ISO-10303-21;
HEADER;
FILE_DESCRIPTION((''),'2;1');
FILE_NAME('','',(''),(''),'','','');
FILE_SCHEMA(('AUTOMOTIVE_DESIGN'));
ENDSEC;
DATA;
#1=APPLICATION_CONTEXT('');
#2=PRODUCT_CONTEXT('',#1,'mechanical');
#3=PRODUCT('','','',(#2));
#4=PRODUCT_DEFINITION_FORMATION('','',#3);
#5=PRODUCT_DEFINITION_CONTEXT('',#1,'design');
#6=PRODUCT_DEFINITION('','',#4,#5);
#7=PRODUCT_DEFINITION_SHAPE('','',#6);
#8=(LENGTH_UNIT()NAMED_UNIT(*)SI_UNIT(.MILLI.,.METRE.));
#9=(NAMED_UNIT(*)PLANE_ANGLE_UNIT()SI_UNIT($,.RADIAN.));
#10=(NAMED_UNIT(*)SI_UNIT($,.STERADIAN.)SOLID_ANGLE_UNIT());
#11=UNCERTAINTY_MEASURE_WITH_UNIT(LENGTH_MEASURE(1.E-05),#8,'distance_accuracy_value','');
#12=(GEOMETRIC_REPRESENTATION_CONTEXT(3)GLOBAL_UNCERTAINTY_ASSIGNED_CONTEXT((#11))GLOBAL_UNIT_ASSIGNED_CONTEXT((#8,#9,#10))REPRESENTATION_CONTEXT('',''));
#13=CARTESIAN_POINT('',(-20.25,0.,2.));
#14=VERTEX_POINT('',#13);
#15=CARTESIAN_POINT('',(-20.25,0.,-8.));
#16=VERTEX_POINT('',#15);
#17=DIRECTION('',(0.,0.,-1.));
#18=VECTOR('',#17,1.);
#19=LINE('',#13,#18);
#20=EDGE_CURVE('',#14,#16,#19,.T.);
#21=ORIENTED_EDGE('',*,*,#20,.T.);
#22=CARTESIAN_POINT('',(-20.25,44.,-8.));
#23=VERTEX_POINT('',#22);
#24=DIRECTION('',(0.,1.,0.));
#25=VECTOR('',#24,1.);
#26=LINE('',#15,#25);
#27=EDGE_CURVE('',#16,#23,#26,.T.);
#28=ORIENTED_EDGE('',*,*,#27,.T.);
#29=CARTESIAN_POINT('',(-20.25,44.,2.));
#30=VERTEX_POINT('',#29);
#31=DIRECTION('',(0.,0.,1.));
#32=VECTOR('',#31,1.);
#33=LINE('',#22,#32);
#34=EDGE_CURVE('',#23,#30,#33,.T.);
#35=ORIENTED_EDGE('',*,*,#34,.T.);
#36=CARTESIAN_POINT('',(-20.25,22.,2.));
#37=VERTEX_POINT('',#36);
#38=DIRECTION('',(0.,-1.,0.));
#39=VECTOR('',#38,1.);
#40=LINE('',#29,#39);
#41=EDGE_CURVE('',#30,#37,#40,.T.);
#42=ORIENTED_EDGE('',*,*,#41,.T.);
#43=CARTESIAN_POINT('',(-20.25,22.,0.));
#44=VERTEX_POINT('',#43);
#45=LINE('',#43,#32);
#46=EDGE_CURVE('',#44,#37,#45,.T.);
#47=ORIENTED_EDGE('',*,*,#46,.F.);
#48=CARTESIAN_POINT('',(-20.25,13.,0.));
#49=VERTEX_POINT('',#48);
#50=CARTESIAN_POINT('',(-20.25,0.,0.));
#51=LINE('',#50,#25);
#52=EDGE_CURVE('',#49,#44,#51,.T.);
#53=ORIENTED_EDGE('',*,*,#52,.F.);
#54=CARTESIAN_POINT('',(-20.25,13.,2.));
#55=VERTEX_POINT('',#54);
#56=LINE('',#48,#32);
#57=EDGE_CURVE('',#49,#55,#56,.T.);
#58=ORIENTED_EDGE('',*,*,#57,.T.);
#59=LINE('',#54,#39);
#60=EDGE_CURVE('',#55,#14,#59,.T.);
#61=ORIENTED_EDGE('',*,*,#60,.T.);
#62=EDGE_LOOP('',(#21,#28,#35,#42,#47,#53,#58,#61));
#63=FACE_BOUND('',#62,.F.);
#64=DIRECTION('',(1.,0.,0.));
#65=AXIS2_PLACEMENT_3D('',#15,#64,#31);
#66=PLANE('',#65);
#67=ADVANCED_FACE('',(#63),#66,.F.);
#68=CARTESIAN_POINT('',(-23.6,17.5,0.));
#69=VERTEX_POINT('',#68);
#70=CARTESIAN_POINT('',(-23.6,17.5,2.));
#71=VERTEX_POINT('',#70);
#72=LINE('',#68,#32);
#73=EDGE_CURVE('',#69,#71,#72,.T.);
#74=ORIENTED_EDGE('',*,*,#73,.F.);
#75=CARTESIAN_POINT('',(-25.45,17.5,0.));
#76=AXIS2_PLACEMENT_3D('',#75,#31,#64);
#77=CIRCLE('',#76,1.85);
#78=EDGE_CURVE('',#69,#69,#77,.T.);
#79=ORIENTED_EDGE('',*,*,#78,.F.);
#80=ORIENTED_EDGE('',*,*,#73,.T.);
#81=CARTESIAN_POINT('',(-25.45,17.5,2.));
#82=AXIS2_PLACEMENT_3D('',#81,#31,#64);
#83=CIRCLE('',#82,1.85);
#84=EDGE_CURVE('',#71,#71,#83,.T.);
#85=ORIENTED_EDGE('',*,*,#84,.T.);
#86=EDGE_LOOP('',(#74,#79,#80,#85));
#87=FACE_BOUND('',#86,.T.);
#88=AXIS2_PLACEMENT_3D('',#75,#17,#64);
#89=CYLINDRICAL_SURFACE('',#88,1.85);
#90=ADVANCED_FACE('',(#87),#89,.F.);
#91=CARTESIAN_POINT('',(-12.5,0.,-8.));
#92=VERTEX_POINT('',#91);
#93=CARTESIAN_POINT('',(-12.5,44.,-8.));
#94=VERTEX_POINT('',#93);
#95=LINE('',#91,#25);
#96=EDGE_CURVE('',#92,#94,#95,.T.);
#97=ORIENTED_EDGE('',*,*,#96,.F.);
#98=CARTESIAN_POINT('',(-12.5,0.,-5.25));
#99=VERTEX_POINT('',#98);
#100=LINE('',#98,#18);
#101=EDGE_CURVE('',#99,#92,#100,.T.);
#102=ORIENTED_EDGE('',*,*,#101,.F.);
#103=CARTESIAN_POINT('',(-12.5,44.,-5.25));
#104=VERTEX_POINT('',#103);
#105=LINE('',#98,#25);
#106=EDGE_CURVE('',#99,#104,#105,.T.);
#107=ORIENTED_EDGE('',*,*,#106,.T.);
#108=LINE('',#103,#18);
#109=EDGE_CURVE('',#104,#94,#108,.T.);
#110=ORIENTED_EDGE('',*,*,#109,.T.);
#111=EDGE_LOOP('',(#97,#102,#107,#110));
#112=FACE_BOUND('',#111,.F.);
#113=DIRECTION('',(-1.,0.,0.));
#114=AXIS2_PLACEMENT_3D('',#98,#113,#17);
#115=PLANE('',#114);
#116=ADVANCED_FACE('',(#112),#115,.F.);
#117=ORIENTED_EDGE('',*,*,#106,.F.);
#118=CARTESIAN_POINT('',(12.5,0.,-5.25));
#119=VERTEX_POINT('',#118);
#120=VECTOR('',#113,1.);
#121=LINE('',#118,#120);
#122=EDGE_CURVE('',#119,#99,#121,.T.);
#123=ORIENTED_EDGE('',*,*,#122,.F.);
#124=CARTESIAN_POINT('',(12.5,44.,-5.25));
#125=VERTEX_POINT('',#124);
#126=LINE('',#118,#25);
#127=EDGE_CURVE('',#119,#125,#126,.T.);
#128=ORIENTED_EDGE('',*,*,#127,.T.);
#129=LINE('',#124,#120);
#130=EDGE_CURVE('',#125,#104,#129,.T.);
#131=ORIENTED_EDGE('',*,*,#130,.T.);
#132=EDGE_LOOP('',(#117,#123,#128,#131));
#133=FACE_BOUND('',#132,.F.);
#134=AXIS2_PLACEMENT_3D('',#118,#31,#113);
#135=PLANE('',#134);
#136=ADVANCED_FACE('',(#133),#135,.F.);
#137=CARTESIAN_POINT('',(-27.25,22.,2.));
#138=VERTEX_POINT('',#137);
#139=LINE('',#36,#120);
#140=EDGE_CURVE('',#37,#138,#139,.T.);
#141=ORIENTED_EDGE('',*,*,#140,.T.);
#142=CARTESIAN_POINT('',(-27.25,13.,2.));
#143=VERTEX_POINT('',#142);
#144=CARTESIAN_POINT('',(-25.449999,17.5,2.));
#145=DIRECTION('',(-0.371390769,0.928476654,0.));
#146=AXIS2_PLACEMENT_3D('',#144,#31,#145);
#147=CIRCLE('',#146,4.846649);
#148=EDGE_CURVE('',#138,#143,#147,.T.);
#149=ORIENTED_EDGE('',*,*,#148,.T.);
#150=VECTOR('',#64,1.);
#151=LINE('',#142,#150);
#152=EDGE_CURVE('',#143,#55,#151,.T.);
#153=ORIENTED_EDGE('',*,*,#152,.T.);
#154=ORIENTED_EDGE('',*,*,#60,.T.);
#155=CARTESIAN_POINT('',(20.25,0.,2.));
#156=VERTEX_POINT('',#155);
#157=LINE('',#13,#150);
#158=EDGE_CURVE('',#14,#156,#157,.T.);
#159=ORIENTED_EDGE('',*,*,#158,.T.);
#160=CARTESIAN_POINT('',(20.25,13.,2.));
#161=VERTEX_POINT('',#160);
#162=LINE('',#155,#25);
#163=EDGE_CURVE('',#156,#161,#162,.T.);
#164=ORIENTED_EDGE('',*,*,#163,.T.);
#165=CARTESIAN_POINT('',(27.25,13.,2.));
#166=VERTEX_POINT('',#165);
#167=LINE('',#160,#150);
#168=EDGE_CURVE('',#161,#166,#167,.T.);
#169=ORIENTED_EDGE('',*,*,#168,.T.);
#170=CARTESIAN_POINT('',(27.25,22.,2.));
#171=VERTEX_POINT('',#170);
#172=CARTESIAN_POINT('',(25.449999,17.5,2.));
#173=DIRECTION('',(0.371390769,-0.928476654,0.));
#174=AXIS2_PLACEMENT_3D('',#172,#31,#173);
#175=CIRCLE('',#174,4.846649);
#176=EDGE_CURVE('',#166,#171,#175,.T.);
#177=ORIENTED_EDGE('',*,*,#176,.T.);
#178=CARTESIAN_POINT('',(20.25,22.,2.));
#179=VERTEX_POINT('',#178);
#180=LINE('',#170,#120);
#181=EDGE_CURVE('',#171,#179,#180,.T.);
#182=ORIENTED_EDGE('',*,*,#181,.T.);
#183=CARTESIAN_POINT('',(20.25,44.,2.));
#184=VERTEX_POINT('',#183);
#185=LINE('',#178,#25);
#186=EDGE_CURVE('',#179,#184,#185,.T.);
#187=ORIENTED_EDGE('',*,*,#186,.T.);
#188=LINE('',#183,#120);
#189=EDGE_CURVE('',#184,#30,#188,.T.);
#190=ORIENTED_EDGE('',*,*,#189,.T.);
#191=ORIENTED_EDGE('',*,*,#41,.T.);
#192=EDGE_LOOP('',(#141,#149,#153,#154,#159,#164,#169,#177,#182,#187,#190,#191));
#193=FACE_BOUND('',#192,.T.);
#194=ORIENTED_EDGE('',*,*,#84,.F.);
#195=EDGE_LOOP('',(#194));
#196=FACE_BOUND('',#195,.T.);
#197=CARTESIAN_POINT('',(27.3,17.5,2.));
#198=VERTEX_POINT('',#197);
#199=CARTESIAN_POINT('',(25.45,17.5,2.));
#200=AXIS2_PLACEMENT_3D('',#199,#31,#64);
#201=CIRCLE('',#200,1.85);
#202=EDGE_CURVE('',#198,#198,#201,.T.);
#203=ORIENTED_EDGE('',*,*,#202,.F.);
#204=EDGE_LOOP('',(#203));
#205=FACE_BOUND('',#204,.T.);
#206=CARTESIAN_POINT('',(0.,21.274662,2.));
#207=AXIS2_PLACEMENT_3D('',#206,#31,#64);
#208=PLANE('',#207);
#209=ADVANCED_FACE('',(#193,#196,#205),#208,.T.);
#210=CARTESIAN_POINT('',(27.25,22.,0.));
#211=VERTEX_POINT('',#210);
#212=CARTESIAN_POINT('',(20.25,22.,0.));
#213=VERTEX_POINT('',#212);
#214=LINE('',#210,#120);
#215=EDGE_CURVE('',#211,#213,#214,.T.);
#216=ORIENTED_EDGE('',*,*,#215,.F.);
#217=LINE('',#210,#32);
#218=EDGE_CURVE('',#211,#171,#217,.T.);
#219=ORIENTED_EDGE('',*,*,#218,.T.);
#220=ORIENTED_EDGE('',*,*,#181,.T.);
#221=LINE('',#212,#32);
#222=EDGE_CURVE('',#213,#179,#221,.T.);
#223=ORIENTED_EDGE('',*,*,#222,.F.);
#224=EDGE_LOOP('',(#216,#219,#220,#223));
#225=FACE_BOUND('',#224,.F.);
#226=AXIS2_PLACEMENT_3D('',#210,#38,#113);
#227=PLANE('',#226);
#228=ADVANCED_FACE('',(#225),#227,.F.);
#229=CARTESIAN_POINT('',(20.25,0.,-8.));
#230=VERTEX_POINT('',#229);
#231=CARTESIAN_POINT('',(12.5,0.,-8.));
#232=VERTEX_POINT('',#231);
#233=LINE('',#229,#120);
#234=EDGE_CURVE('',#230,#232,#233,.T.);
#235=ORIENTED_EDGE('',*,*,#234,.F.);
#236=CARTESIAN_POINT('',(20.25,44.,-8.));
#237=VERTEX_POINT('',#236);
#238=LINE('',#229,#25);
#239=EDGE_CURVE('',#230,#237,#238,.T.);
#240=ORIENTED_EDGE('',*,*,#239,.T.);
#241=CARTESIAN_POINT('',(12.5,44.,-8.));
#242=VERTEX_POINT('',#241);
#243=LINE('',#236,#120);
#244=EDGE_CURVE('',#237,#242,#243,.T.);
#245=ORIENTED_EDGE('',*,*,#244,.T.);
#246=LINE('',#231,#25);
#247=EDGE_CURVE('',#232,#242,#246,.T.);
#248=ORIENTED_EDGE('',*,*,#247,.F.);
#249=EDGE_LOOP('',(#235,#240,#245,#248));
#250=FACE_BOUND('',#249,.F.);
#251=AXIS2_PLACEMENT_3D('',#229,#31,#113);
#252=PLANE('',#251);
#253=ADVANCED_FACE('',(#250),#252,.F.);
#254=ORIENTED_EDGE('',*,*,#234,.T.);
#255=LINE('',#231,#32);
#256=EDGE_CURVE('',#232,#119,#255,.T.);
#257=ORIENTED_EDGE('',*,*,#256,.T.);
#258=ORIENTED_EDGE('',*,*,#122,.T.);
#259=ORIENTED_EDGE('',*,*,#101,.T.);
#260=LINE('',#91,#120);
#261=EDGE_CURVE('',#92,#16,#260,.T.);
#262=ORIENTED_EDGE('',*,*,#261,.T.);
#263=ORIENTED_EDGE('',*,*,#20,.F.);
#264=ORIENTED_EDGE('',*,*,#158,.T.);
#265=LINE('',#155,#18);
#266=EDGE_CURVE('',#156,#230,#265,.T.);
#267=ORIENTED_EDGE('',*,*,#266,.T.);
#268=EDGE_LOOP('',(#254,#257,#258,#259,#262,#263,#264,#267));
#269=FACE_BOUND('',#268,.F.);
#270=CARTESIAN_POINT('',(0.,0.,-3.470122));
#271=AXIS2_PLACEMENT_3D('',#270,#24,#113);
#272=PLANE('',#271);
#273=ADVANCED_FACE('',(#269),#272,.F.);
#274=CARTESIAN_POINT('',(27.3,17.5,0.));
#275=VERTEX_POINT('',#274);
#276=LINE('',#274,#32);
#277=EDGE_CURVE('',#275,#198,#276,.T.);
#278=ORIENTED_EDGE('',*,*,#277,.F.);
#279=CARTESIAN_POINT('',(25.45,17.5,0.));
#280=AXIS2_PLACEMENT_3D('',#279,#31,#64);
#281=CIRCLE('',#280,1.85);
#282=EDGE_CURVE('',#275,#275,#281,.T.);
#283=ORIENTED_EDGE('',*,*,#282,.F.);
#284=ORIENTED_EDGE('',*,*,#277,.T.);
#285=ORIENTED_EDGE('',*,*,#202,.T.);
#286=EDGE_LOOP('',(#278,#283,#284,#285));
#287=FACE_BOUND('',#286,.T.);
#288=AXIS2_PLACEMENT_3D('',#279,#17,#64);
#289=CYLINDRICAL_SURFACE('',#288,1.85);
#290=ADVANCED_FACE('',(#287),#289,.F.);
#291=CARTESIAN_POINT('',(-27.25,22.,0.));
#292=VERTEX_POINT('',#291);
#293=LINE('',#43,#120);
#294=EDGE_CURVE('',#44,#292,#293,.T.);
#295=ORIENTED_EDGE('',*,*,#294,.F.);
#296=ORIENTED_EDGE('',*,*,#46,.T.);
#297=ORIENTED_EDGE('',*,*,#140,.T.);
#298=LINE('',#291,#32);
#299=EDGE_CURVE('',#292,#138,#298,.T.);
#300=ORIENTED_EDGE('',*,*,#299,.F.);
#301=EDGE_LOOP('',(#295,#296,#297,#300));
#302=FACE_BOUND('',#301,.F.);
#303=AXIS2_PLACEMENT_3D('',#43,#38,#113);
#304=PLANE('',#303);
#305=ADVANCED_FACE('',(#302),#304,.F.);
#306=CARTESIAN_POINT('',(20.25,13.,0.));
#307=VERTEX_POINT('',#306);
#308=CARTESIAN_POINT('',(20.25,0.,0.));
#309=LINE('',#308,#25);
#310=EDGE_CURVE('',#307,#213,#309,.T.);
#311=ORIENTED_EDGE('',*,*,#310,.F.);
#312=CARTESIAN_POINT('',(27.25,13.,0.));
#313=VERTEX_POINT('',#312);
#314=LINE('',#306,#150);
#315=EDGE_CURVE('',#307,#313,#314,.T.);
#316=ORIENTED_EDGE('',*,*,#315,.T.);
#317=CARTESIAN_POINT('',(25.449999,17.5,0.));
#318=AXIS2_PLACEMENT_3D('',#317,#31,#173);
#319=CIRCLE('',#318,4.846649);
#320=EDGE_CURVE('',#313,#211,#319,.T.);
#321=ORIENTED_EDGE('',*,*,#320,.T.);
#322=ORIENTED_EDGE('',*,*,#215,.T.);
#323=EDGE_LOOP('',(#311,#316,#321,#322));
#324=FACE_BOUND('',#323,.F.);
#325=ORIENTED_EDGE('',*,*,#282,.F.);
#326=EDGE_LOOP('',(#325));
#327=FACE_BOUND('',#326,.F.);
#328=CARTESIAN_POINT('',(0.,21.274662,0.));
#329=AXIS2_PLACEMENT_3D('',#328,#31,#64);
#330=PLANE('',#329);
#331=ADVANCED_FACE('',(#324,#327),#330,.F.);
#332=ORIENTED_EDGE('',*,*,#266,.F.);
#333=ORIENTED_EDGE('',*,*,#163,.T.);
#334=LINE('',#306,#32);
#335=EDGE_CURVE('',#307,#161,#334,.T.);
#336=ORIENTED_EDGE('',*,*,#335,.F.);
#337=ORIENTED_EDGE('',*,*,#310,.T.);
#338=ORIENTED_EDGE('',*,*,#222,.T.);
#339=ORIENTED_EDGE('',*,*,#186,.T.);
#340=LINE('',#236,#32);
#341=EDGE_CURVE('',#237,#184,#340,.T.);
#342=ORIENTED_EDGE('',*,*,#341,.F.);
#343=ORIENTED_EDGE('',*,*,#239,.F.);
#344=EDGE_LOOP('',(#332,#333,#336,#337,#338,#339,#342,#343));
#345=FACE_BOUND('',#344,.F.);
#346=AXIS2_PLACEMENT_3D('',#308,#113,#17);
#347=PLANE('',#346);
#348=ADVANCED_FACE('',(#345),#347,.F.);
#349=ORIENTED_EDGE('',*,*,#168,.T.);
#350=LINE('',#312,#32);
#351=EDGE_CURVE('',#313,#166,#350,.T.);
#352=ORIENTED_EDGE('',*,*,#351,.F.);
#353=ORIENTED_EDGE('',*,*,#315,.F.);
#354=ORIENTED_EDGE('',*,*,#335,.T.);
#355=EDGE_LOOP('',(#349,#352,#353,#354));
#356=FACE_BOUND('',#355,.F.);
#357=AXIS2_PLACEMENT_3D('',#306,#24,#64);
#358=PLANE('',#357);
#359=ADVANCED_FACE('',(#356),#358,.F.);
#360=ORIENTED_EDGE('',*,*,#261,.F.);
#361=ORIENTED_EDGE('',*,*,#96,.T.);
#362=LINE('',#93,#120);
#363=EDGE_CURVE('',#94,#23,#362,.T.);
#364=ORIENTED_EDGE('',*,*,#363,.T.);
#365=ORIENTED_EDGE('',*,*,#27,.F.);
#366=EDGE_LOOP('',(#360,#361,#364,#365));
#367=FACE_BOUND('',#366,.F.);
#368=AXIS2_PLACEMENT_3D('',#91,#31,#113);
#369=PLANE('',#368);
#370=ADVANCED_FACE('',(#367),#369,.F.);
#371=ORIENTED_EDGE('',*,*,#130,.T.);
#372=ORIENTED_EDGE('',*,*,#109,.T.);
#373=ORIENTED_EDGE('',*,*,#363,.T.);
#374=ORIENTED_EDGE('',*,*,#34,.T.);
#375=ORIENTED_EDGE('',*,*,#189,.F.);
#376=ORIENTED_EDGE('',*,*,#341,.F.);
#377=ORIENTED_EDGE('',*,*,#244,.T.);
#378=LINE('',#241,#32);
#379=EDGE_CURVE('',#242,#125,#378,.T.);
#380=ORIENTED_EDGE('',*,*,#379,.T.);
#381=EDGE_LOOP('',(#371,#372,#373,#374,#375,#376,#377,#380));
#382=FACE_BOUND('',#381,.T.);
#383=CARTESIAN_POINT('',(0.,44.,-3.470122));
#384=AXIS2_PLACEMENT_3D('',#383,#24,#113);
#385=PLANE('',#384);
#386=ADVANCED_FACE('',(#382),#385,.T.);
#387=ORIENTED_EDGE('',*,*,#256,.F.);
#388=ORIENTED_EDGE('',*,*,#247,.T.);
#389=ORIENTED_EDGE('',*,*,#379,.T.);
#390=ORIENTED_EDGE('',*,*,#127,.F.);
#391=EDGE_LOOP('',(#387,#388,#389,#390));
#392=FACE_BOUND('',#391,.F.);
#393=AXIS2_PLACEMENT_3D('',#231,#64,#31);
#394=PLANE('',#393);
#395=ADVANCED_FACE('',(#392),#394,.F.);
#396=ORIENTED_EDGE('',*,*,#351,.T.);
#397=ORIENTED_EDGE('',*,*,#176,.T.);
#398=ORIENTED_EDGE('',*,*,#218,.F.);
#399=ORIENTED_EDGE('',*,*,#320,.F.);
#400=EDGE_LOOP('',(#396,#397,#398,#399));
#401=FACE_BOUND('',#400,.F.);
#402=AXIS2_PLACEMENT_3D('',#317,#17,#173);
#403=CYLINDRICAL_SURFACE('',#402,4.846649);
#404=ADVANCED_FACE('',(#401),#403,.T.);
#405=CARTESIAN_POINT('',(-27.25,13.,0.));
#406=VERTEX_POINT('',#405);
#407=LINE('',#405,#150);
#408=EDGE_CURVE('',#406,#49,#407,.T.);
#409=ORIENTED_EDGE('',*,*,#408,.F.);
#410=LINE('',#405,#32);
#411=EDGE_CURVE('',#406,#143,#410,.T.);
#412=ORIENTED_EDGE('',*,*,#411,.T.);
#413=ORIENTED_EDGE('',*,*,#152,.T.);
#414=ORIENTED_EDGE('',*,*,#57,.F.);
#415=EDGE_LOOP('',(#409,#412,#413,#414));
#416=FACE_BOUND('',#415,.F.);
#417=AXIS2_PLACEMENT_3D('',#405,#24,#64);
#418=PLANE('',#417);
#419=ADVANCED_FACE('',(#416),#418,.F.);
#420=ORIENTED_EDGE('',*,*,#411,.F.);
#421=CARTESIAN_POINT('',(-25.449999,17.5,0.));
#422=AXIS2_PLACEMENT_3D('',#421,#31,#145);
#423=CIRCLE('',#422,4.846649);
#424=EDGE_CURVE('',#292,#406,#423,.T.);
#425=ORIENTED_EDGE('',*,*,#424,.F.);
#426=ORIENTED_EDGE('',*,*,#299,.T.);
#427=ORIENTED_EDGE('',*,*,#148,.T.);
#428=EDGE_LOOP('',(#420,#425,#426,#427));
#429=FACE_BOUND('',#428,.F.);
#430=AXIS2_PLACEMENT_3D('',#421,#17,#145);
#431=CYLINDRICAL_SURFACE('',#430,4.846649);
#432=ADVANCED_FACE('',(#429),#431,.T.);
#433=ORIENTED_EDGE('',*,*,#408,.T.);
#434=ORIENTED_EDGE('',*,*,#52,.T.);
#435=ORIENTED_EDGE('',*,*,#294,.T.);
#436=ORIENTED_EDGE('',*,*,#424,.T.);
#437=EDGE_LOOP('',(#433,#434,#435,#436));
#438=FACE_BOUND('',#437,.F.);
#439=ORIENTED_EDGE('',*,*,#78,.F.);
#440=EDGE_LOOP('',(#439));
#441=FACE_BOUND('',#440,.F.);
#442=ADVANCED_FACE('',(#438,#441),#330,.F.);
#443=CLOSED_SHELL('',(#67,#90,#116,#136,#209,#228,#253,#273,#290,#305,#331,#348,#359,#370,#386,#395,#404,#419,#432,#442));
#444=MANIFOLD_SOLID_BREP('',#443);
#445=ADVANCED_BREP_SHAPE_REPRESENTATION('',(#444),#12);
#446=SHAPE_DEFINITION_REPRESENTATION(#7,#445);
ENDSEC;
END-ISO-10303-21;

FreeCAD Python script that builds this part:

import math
import FreeCAD as App
import Part
import Sketcher

V = App.Vector


def add_polygon(sketch, points):
    """Adds a closed chain of lines whose ends are joined by coincident constraints."""
    first, n = sketch.GeometryCount, len(points)
    for a, b in zip(points, points[1:] + points[:1]):
        sketch.addGeometry(Part.LineSegment(App.Vector(*a, 0), App.Vector(*b, 0)), False)
    for i in range(n):
        sketch.addConstraint(Sketcher.Constraint("Coincident", first + i, 2, first + (i + 1) % n, 1))

doc = App.newDocument("Part")
body = doc.addObject("PartDesign::Body", "Body")

sketch1 = doc.addObject("Sketcher::SketchObject", "Sketch")
body.addObject(sketch1)
sketch1.AttachmentSupport = (doc.XY_Plane, [""])
sketch1.MapMode = "FlatFace"
add_polygon(sketch1, [(20.2, 0), (-20.2, 0), (-20.2, -8), (-12.5, -8), (-12.5, -5.2), (12.5, -5.2), (12.5, -8), (20.2, -8)])
sketch1.addConstraint([
    Sketcher.Constraint("Horizontal", 0),
    Sketcher.Constraint("Vertical", 1),
    Sketcher.Constraint("Horizontal", 2),
    Sketcher.Constraint("Vertical", 3),
    Sketcher.Constraint("Horizontal", 4),
    Sketcher.Constraint("Vertical", 5),
    Sketcher.Constraint("Horizontal", 6),
    Sketcher.Constraint("Vertical", 7),
    Sketcher.Constraint("Symmetric", 0, 2, 7, 2, -1, 1),
    Sketcher.Constraint("Symmetric", 2, 2, 5, 2, -2),
    Sketcher.Constraint("DistanceX", 4, 1, 4, 2, 25.0),
    Sketcher.Constraint("DistanceY", 1, 2, 1, 1, 8.0),
    Sketcher.Constraint("DistanceX", 0, 2, 0, 1, 40.5),
    Sketcher.Constraint("DistanceY", 3, 1, 3, 2, 2.75),
])
pad1 = doc.addObject("PartDesign::Pad", "Pad")
body.addObject(pad1)
pad1.Profile = sketch1
pad1.Length = 44
pad1.Reversed = True
body2 = doc.addObject("PartDesign::Body", "Body001")
doc.recompute()

body.Placement = App.Placement(V(0, 0, 0), App.Rotation(V(1, 0, 0), 90))
boolean = doc.addObject("PartDesign::Boolean", "Boolean")
body2.addObject(boolean)
boolean.Type = "Fuse"
boolean.addObjects([body])
body3 = doc.addObject("PartDesign::Body", "Body002")

sketch2 = doc.addObject("Sketcher::SketchObject", "Sketch001")
body3.addObject(sketch2)
sketch2.AttachmentSupport = (doc.getObject("XY_Plane002"), [""])
sketch2.MapMode = "FlatFace"
sketch2.addGeometry([
    Part.LineSegment(V(-20.2, 44, 0), V(-20.2, 22, 0)),
    Part.LineSegment(V(-20.2, 22, 0), V(-27.2, 22, 0)),
    Part.ArcOfCircle(Part.Circle(V(-25.4, 17.5, 0), V(0, 0, 1), 4.8), math.radians(112), math.radians(248)),
    Part.LineSegment(V(-27.2, 13, 0), V(-20.2, 13, 0)),
    Part.LineSegment(V(-20.2, 13, 0), V(-20.2, 0, 0)),
    Part.LineSegment(V(-20.2, 0, 0), V(20.2, 0, 0)),
    Part.LineSegment(V(20.2, 0, 0), V(20.2, 13, 0)),
    Part.LineSegment(V(20.2, 13, 0), V(27.2, 13, 0)),
    Part.ArcOfCircle(Part.Circle(V(25.4, 17.5, 0), V(0, 0, 1), 4.8), math.radians(-68), math.radians(68)),
    Part.LineSegment(V(27.2, 22, 0), V(20.2, 22, 0)),
    Part.LineSegment(V(20.2, 22, 0), V(20.2, 44, 0)),
    Part.LineSegment(V(20.2, 44, 0), V(-20.2, 44, 0)),
    Part.Circle(V(-25.4, 17.5, 0), V(0, 0, 1), 1.9),
    Part.Circle(V(25.4, 17.5, 0), V(0, 0, 1), 1.9),
], False)
sketch2.addConstraint([
    Sketcher.Constraint("Coincident", 0, 2, 1, 1),
    Sketcher.Constraint("Coincident", 1, 2, 2, 1),
    Sketcher.Constraint("Coincident", 2, 2, 3, 1),
    Sketcher.Constraint("Coincident", 3, 2, 4, 1),
    Sketcher.Constraint("Coincident", 4, 2, 5, 1),
    Sketcher.Constraint("Coincident", 5, 2, 6, 1),
    Sketcher.Constraint("Coincident", 6, 2, 7, 1),
    Sketcher.Constraint("Coincident", 7, 2, 8, 1),
    Sketcher.Constraint("Coincident", 8, 2, 9, 1),
    Sketcher.Constraint("Coincident", 9, 2, 10, 1),
    Sketcher.Constraint("Coincident", 10, 2, 11, 1),
    Sketcher.Constraint("Coincident", 11, 2, 0, 1),
    Sketcher.Constraint("Vertical", 0),
    Sketcher.Constraint("Horizontal", 1),
    Sketcher.Constraint("Horizontal", 3),
    Sketcher.Constraint("Vertical", 4),
    Sketcher.Constraint("Horizontal", 5),
    Sketcher.Constraint("Vertical", 6),
    Sketcher.Constraint("Horizontal", 7),
    Sketcher.Constraint("Horizontal", 9),
    Sketcher.Constraint("Vertical", 10),
    Sketcher.Constraint("Horizontal", 11),
    Sketcher.Constraint("Coincident", 12, 3, 2, 3),
    Sketcher.Constraint("Coincident", 13, 3, 8, 3),
    Sketcher.Constraint("Equal", 2, 8),
    Sketcher.Constraint("Equal", 12, 13),
    Sketcher.Constraint("Symmetric", 4, 2, 5, 2, -1, 1),
    Sketcher.Constraint("Symmetric", 2, 3, 8, 3, -2),
    Sketcher.Constraint("Symmetric", 0, 2, 9, 2, -2),
    Sketcher.Constraint("Horizontal", 3, 2, 6, 2),
    Sketcher.Constraint("Vertical", 1, 2, 2, 2),
    Sketcher.Constraint("Vertical", 0, 2, 3, 2),
    Sketcher.Constraint("Diameter", 12, 3.7),
    Sketcher.Constraint("DistanceX", 1, 2, 1, 1, 7.0),
    Sketcher.Constraint("DistanceY", 0, 2, 0, 1, 22.0),
    Sketcher.Constraint("DistanceY", 4, 2, 4, 1, 13.0),
    Sketcher.Constraint("DistanceX", 5, 1, 5, 2, 40.5),
    Sketcher.Constraint("DistanceY", -1, 1, 0, 2, 22.0),
    Sketcher.Constraint("DistanceX", 2, 3, 8, 3, 50.899999),
])
pad2 = doc.addObject("PartDesign::Pad", "Pad001")
body3.addObject(pad2)
pad2.Profile = sketch2
pad2.Length = 2
doc.recompute()

boolean2 = doc.addObject("PartDesign::Boolean", "Boolean001")
body3.addObject(boolean2)
boolean2.Type = "Fuse"
boolean2.addObjects([body2])

doc.recompute()
